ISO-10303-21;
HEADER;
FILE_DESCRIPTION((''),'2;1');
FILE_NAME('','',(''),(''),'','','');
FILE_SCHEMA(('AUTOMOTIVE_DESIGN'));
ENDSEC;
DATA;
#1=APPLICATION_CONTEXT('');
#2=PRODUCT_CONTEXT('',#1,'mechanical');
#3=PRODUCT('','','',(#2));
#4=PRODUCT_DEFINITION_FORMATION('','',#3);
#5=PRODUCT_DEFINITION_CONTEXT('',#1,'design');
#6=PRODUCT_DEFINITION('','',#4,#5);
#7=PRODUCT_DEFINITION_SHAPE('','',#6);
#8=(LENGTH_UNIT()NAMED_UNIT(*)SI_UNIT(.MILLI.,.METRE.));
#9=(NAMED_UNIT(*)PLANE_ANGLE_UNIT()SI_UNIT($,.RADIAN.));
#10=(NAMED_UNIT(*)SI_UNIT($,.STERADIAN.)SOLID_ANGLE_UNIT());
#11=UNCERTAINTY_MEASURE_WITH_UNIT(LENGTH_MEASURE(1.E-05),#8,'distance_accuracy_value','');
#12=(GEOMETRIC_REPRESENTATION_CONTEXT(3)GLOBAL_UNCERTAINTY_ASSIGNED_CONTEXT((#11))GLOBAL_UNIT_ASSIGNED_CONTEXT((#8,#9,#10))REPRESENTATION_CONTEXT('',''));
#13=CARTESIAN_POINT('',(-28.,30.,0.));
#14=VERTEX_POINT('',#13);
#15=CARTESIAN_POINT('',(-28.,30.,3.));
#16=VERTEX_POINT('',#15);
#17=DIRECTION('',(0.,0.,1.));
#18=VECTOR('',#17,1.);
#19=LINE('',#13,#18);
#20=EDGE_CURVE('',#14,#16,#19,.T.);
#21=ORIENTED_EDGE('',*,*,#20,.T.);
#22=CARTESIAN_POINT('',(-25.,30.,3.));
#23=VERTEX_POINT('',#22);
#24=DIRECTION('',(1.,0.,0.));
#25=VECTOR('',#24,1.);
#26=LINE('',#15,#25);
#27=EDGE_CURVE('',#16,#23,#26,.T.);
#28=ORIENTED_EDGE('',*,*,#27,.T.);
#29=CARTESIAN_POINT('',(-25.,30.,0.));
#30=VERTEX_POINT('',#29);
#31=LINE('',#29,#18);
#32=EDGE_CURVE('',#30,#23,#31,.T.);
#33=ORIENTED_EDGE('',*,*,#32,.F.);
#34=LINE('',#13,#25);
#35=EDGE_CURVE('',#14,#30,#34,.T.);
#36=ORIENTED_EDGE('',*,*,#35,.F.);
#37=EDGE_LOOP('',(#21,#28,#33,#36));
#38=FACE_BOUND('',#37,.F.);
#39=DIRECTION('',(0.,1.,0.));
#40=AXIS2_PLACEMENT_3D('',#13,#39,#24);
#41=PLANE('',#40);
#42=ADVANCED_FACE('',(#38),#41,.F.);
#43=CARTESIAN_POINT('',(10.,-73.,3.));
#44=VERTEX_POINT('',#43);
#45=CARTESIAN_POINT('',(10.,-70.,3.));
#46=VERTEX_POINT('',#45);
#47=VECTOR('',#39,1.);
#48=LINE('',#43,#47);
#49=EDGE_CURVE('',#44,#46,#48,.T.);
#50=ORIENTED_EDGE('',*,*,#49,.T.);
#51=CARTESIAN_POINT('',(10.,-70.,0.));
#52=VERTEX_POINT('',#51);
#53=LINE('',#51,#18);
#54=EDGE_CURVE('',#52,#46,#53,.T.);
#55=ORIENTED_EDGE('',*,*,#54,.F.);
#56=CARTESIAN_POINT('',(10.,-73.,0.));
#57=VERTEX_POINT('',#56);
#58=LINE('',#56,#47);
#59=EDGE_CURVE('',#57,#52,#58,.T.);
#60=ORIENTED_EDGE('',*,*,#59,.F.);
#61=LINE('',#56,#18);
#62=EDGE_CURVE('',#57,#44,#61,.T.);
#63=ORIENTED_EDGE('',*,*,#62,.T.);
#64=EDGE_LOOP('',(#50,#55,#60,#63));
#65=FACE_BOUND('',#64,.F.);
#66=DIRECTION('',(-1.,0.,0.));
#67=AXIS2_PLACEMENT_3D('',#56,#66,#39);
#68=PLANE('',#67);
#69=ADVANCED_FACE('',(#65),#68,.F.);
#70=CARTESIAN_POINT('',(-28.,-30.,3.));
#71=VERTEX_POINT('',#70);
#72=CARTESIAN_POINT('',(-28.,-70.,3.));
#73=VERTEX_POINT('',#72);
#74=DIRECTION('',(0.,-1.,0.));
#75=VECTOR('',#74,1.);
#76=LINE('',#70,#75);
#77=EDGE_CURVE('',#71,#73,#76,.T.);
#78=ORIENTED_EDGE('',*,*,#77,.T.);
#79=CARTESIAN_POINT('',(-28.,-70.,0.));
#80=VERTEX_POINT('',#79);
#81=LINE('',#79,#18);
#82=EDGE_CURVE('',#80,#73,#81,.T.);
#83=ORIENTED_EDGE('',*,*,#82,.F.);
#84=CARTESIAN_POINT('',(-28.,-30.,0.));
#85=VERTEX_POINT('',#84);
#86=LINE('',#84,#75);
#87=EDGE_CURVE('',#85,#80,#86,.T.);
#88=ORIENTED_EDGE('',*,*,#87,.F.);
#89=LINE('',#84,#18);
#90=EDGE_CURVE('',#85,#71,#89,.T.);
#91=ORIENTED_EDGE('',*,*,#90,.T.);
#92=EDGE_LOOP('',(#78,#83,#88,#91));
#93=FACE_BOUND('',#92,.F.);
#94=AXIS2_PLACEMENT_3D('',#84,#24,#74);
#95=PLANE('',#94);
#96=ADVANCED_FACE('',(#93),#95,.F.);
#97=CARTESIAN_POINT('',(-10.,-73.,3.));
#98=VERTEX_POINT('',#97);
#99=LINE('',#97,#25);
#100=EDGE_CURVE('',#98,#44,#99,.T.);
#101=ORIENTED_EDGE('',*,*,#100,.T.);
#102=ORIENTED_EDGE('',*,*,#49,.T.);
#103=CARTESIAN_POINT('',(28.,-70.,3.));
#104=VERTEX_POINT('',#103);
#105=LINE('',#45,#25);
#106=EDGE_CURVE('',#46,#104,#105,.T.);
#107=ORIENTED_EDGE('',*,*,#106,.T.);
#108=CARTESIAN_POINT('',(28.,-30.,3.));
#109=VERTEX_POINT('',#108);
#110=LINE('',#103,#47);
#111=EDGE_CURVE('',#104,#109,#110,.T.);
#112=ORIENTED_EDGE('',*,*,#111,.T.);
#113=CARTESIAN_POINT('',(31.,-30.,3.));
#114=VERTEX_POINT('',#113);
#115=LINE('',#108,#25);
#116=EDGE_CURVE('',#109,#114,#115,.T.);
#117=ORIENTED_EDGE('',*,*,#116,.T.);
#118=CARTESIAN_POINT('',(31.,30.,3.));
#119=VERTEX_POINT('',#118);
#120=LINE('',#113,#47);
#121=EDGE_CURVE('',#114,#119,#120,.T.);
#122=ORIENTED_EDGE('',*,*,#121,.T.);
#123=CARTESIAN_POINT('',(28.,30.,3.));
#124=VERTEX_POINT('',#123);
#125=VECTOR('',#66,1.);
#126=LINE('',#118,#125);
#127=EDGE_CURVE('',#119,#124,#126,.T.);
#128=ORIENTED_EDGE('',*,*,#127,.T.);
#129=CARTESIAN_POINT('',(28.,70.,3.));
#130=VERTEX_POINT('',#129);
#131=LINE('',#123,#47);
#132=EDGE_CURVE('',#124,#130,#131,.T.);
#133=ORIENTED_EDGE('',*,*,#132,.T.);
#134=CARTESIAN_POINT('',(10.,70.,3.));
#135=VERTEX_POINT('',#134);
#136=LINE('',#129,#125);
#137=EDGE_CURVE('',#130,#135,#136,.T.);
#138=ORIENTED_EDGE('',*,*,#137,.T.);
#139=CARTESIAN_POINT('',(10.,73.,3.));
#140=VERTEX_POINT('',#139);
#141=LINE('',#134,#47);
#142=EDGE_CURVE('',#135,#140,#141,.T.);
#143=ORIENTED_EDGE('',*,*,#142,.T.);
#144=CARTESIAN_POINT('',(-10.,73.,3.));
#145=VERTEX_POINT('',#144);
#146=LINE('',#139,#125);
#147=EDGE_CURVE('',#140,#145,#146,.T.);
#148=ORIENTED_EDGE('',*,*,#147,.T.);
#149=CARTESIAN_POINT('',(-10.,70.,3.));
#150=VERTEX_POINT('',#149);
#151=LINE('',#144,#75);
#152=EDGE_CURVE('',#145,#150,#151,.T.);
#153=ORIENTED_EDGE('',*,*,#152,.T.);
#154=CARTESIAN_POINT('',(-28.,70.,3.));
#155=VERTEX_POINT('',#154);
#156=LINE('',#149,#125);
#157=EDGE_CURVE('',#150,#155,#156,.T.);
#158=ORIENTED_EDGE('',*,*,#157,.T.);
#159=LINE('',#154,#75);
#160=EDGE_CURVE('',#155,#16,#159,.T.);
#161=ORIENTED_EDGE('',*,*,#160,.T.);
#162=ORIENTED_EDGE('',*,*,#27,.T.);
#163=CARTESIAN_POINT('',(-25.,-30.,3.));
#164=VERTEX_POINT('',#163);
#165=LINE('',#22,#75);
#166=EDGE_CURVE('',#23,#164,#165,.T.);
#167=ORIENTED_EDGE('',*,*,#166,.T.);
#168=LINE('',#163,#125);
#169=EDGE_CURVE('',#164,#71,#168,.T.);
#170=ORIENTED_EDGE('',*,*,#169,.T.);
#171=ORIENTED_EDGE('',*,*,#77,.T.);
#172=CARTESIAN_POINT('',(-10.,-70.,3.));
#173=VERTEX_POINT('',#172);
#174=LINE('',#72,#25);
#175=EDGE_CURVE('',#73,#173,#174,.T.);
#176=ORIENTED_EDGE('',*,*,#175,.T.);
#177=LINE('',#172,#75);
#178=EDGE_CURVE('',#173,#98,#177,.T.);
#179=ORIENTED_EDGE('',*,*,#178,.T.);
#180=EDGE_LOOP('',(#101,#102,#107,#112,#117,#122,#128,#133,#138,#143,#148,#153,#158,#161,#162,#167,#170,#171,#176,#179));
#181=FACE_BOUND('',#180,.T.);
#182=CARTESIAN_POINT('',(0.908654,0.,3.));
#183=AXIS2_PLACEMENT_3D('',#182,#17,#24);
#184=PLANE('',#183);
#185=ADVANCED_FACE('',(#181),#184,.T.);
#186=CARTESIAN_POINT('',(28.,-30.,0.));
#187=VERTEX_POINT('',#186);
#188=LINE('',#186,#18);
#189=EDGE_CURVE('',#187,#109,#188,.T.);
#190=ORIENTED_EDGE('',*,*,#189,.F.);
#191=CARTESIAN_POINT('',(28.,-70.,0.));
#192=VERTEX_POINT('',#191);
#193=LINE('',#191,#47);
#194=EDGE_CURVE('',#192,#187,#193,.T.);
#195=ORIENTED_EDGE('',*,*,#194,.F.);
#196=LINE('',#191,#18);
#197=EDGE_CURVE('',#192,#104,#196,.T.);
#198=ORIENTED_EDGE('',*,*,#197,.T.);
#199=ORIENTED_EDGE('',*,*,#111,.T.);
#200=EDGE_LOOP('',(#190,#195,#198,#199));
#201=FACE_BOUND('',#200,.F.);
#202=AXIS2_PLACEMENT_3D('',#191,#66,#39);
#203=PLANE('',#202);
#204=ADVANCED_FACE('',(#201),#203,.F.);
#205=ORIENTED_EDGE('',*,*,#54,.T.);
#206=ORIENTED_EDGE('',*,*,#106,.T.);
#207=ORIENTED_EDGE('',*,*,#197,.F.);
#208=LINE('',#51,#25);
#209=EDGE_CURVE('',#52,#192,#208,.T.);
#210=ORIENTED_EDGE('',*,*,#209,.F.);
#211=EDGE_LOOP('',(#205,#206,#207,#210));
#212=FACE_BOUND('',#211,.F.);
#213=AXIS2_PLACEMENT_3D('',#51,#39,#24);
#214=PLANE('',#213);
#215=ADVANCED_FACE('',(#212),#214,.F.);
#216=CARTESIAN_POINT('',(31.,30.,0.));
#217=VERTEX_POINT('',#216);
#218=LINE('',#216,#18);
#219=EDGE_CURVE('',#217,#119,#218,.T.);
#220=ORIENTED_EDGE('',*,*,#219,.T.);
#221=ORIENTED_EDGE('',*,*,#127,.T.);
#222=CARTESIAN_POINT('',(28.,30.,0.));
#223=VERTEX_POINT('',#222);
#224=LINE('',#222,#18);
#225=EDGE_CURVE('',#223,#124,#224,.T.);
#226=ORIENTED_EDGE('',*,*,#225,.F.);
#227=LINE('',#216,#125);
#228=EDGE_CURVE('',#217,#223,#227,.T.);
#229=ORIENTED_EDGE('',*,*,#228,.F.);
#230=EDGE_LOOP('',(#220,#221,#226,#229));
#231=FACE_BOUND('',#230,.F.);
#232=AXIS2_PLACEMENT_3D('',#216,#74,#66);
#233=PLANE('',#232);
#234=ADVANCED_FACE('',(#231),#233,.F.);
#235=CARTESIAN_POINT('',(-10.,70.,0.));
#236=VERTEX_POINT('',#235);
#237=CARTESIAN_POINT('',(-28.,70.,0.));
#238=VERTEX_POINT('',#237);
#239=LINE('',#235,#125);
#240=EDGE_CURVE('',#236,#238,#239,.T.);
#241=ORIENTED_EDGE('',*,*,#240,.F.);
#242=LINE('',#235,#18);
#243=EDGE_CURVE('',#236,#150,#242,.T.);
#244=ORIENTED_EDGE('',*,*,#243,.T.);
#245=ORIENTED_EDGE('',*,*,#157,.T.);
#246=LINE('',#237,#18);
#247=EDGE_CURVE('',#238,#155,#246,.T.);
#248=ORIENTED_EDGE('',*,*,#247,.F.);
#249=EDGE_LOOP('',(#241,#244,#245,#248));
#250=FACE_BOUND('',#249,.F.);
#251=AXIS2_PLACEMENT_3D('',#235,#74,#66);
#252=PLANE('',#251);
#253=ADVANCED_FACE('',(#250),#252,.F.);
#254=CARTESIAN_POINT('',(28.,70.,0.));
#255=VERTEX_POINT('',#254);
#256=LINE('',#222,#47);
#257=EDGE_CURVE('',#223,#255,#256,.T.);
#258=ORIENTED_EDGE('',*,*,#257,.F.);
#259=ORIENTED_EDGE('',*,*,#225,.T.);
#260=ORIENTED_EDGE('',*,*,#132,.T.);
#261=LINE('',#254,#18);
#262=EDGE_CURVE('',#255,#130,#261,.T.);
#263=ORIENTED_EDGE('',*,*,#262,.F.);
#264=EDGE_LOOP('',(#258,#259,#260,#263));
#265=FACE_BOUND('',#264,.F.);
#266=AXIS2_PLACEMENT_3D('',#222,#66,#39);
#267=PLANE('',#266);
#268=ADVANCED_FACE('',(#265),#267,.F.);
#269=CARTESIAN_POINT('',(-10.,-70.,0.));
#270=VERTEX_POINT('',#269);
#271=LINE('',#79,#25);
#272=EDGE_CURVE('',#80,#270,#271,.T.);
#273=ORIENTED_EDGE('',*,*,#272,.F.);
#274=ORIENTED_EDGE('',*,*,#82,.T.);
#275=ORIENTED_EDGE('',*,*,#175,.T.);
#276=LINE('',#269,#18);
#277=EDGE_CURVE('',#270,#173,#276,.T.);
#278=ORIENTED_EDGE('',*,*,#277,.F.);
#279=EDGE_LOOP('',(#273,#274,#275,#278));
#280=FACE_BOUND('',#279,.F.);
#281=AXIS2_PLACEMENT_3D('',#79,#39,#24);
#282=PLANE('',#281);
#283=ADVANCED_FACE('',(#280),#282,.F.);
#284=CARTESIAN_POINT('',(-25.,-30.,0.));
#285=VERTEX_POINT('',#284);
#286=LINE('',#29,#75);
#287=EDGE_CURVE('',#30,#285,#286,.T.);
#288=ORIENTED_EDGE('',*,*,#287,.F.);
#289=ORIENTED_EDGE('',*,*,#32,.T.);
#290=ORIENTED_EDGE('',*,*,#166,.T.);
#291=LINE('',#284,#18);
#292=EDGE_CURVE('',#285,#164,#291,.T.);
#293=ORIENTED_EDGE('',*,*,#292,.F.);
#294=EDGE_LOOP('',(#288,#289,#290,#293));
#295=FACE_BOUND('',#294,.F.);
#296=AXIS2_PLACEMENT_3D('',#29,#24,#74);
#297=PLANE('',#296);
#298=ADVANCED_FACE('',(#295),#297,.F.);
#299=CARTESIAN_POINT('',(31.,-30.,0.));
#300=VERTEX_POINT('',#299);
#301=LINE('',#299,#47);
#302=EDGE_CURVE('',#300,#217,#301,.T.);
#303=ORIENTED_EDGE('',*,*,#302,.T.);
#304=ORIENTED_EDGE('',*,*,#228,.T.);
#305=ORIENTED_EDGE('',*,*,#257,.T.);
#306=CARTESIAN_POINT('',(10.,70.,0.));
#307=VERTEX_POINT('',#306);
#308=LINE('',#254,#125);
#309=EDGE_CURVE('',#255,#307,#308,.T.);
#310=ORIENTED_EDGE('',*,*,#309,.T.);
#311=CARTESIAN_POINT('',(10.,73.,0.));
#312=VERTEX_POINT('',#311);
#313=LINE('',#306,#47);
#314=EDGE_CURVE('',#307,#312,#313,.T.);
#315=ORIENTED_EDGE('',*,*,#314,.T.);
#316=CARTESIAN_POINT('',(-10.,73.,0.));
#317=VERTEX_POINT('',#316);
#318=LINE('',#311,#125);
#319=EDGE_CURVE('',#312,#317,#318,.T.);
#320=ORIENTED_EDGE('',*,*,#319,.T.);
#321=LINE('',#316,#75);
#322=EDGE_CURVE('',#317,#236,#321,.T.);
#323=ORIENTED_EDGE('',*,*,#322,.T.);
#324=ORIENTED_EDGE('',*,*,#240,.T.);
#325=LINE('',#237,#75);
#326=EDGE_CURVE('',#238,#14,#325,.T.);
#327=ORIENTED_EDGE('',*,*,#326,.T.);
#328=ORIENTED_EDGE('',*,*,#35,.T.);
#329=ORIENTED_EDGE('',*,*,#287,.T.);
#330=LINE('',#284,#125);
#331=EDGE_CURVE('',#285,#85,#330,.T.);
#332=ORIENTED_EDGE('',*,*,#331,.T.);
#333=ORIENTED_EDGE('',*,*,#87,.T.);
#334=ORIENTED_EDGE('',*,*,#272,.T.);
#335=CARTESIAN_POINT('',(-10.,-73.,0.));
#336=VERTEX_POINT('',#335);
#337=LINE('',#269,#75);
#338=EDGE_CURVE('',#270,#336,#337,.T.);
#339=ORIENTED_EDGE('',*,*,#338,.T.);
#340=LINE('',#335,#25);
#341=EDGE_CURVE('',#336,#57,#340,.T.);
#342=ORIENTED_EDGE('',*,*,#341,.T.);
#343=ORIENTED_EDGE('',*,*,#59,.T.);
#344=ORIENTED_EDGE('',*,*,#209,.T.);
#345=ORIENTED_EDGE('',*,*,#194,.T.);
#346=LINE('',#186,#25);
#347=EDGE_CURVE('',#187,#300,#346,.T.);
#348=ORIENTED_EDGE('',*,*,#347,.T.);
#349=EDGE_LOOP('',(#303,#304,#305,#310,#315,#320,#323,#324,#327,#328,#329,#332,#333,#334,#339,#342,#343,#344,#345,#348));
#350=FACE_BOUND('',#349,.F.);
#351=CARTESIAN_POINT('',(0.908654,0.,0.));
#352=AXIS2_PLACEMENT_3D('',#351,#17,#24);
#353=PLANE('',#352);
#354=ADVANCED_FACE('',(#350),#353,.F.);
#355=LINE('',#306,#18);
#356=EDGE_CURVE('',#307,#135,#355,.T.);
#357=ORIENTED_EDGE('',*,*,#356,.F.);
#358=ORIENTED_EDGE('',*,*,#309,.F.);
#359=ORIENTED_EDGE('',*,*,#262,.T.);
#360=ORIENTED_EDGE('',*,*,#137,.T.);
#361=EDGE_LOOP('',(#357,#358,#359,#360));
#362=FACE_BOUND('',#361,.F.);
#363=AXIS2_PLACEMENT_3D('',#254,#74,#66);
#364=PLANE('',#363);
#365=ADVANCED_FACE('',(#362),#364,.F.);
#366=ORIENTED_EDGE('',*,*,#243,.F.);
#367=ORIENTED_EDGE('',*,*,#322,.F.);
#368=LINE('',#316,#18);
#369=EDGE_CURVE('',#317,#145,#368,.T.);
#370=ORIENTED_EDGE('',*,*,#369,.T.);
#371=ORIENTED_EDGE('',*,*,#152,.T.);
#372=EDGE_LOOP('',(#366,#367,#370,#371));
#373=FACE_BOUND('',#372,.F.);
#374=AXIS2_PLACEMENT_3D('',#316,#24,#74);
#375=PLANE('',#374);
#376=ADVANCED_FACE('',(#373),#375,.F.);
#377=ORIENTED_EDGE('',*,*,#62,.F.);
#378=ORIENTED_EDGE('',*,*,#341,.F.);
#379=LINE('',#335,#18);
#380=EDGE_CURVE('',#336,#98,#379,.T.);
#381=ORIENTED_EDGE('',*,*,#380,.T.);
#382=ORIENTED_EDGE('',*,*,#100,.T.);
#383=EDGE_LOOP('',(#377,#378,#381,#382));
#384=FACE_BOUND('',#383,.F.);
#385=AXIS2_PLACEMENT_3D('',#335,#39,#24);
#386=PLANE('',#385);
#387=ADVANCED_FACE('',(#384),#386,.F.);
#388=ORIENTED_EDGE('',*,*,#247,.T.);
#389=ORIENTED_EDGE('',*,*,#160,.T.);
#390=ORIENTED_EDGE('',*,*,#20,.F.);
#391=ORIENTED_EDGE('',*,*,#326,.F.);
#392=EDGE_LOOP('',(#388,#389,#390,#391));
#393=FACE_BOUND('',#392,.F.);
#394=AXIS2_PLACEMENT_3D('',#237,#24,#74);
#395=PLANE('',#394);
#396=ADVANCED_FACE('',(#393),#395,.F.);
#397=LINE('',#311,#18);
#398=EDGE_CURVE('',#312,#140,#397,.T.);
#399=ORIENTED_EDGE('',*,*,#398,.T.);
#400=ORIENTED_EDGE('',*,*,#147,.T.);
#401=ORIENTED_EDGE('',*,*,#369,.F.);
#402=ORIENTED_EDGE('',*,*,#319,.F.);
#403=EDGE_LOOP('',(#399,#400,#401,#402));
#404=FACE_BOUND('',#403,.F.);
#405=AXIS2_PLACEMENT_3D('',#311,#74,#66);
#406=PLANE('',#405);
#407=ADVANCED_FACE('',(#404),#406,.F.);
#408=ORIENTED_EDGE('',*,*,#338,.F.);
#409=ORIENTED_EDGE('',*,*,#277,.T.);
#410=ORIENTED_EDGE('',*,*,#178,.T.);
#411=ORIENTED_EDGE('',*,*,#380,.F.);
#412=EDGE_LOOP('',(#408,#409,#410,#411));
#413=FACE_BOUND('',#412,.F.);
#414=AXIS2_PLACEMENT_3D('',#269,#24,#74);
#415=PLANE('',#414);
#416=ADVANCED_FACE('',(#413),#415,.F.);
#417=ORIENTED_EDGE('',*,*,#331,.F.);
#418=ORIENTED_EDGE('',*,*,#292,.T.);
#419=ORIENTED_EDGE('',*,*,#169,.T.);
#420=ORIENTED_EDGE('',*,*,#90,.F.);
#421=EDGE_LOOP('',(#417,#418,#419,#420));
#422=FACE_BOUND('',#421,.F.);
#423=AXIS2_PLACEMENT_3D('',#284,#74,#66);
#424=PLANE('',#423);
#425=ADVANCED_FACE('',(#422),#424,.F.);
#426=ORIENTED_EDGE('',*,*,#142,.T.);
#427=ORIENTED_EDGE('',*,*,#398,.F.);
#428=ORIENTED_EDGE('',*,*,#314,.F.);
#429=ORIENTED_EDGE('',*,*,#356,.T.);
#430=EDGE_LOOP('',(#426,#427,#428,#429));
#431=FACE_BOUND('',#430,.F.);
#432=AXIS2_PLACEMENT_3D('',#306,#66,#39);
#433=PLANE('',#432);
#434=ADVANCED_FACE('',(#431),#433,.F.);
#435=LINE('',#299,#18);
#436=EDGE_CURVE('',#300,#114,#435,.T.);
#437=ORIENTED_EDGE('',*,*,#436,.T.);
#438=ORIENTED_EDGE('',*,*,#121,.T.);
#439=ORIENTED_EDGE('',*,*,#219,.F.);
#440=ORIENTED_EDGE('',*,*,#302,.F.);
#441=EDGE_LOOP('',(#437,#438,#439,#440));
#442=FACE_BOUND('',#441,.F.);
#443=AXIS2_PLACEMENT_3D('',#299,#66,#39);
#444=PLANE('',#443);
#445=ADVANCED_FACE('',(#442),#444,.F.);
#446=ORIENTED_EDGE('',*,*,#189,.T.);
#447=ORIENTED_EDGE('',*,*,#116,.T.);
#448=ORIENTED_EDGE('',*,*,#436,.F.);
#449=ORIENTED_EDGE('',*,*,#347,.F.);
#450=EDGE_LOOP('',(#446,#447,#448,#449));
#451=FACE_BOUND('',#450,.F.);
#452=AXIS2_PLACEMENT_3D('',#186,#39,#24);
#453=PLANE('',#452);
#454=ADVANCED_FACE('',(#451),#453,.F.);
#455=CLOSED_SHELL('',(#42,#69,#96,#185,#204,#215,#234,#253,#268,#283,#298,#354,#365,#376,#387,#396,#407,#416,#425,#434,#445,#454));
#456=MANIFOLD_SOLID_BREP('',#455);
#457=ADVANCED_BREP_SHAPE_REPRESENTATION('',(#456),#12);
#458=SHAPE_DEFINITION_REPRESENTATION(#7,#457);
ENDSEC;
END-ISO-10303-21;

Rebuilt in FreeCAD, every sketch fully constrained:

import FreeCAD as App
import Part
import Sketcher

V = App.Vector
Q = App.Units.Quantity

doc = App.newDocument("Part")
body = doc.addObject("PartDesign::Body", "Body")

# Sketch on XY plane
sketch1 = body.newObject("Sketcher::SketchObject", "Sketch")
sketch1.AttachmentSupport = (doc.getObject("XY_Plane"), [""])
sketch1.MapMode = "FlatFace"
sketch1.addGeometry([
    Part.LineSegment(V(10, -70, 0), V(28, -70, 0)),  # 0
    Part.LineSegment(V(28, -70, 0), V(28, -30, 0)),  # 1
    Part.LineSegment(V(28, -30, 0), V(31, -30, 0)),  # 2
    Part.LineSegment(V(31, -30, 0), V(31, 30, 0)),  # 3
    Part.LineSegment(V(31, 30, 0), V(28, 30, 0)),  # 4
    Part.LineSegment(V(28, 30, 0), V(28, 70, 0)),  # 5
    Part.LineSegment(V(28, 70, 0), V(10, 70, 0)),  # 6
    Part.LineSegment(V(10, 70, 0), V(10, 73, 0)),  # 7
    Part.LineSegment(V(10, 73, 0), V(-10, 73, 0)),  # 8
    Part.LineSegment(V(-10, 73, 0), V(-10, 70, 0)),  # 9
    Part.LineSegment(V(-10, 70, 0), V(-28, 70, 0)),  # 10
    Part.LineSegment(V(-28, 70, 0), V(-28, 30, 0)),  # 11
    Part.LineSegment(V(-28, 30, 0), V(-25, 30, 0)),  # 12
    Part.LineSegment(V(-25, 30, 0), V(-25, -30, 0)),  # 13
    Part.LineSegment(V(-25, -30, 0), V(-28, -30, 0)),  # 14
    Part.LineSegment(V(-28, -30, 0), V(-28, -70, 0)),  # 15
    Part.LineSegment(V(-28, -70, 0), V(-10, -70, 0)),  # 16
    Part.LineSegment(V(-10, -70, 0), V(-10, -73, 0)),  # 17
    Part.LineSegment(V(-10, -73, 0), V(10, -73, 0)),  # 18
    Part.LineSegment(V(10, -73, 0), V(10, -70, 0)),  # 19
], False)
sketch1.addConstraint([
    Sketcher.Constraint("Coincident", 0, 2, 1, 1),
    Sketcher.Constraint("Coincident", 1, 2, 2, 1),
    Sketcher.Constraint("Coincident", 2, 2, 3, 1),
    Sketcher.Constraint("Coincident", 3, 2, 4, 1),
    Sketcher.Constraint("Coincident", 4, 2, 5, 1),
    Sketcher.Constraint("Coincident", 5, 2, 6, 1),
    Sketcher.Constraint("Coincident", 6, 2, 7, 1),
    Sketcher.Constraint("Coincident", 7, 2, 8, 1),
    Sketcher.Constraint("Coincident", 8, 2, 9, 1),
    Sketcher.Constraint("Coincident", 9, 2, 10, 1),
    Sketcher.Constraint("Coincident", 10, 2, 11, 1),
    Sketcher.Constraint("Coincident", 11, 2, 12, 1),
    Sketcher.Constraint("Coincident", 12, 2, 13, 1),
    Sketcher.Constraint("Coincident", 13, 2, 14, 1),
    Sketcher.Constraint("Coincident", 14, 2, 15, 1),
    Sketcher.Constraint("Coincident", 15, 2, 16, 1),
    Sketcher.Constraint("Coincident", 16, 2, 17, 1),
    Sketcher.Constraint("Coincident", 17, 2, 18, 1),
    Sketcher.Constraint("Coincident", 18, 2, 19, 1),
    Sketcher.Constraint("Coincident", 19, 2, 0, 1),
    Sketcher.Constraint("Horizontal", 0),
    Sketcher.Constraint("Vertical", 1),
    Sketcher.Constraint("Horizontal", 2),
    Sketcher.Constraint("Vertical", 3),
    Sketcher.Constraint("Horizontal", 4),
    Sketcher.Constraint("Vertical", 5),
    Sketcher.Constraint("Horizontal", 6),
    Sketcher.Constraint("Vertical", 7),
    Sketcher.Constraint("Horizontal", 8),
    Sketcher.Constraint("Vertical", 9),
    Sketcher.Constraint("Horizontal", 10),
    Sketcher.Constraint("Vertical", 11),
    Sketcher.Constraint("Horizontal", 12),
    Sketcher.Constraint("Vertical", 13),
    Sketcher.Constraint("Horizontal", 14),
    Sketcher.Constraint("Vertical", 15),
    Sketcher.Constraint("Horizontal", 16),
    Sketcher.Constraint("Vertical", 17),
    Sketcher.Constraint("Horizontal", 18),
    Sketcher.Constraint("Vertical", 19),
    Sketcher.Constraint("Symmetric", 0, 2, 10, 2, -1, 1),
    Sketcher.Constraint("Symmetric", 4, 2, 14, 2, -1, 1),
    Sketcher.Constraint("Symmetric", 6, 2, 16, 2, -1, 1),
    Sketcher.Constraint("Symmetric", 8, 2, 18, 2, -1, 1),
    Sketcher.Constraint("Symmetric", 6, 2, 9, 2, -2),
    Sketcher.Constraint("Symmetric", 4, 2, 11, 2, -2),
    Sketcher.Constraint("Horizontal", 2, 2, 13, 2),
    Sketcher.Constraint("Equal", 4, 12),
    Sketcher.Constraint("Equal", 14, 7),
    Sketcher.Constraint("DistanceX", 0, 1, 0, 2, Q("18 mm")),
    Sketcher.Constraint("DistanceX", 2, 1, 2, 2, Q("3 mm")),
    Sketcher.Constraint("DistanceX", 8, 2, 8, 1, Q("20 mm")),
    Sketcher.Constraint("DistanceY", 1, 1, 1, 2, Q("40 mm")),
    Sketcher.Constraint("DistanceY", 3, 1, 3, 2, Q("60 mm")),
])
pad1 = body.newObject("PartDesign::Pad", "Pad")
pad1.Profile = sketch1
pad1.Length = 3

doc.recompute()
